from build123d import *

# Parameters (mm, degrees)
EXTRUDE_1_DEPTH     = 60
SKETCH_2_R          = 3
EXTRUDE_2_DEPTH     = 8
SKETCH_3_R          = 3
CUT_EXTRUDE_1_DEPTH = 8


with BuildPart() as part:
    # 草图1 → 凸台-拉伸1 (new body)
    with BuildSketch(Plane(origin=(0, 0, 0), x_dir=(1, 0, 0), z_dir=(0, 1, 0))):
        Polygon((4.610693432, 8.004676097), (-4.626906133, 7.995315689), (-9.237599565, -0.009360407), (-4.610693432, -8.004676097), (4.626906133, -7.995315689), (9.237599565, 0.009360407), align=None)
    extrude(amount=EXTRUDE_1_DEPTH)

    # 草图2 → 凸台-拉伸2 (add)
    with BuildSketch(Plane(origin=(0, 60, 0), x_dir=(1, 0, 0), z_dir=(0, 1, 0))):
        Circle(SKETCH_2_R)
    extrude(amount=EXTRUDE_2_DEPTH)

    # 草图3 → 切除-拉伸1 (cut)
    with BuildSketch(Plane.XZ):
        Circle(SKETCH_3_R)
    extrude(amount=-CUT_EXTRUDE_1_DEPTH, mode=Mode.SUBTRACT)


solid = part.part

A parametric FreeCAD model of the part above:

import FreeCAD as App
import Part
import Sketcher
Q = App.Units.Quantity

doc = App.newDocument("Part")
body = doc.addObject("PartDesign::Body", "Body")

sketch1 = body.newObject("Sketcher::SketchObject", "Sketch")
sketch1.AttachmentSupport = (doc.getObject("XZ_Plane"), [""])
sketch1.MapMode = "FlatFace"
sketch1.addGeometry(Part.LineSegment(App.Vector(4.610693, -8.004676, 0), App.Vector(-4.626906, -7.995316, 0)), False)
sketch1.addGeometry(Part.LineSegment(App.Vector(-4.626906, -7.995316, 0), App.Vector(-9.2376, 0.00936, 0)), False)
sketch1.addGeometry(Part.LineSegment(App.Vector(-9.2376, 0.00936, 0), App.Vector(-4.610693, 8.004676, 0)), False)
sketch1.addGeometry(Part.LineSegment(App.Vector(-4.610693, 8.004676, 0), App.Vector(4.626906, 7.995316, 0)), False)
sketch1.addGeometry(Part.LineSegment(App.Vector(4.626906, 7.995316, 0), App.Vector(9.2376, -0.00936, 0)), False)
sketch1.addGeometry(Part.LineSegment(App.Vector(9.2376, -0.00936, 0), App.Vector(4.610693, -8.004676, 0)), False)
sketch1.addConstraint(Sketcher.Constraint("Coincident", 0, 2, 1, 1))
sketch1.addConstraint(Sketcher.Constraint("Coincident", 1, 2, 2, 1))
sketch1.addConstraint(Sketcher.Constraint("Coincident", 2, 2, 3, 1))
sketch1.addConstraint(Sketcher.Constraint("Coincident", 3, 2, 4, 1))
sketch1.addConstraint(Sketcher.Constraint("Coincident", 4, 2, 5, 1))
sketch1.addConstraint(Sketcher.Constraint("Coincident", 5, 2, 0, 1))
sketch1.addConstraint(Sketcher.Constraint("Symmetric", 0, 2, 3, 2, -1, 1))
sketch1.addConstraint(Sketcher.Constraint("Symmetric", 1, 2, 4, 2, -1, 1))
sketch1.addConstraint(Sketcher.Constraint("Symmetric", 2, 2, 5, 2, -1, 1))
sketch1.addConstraint(Sketcher.Constraint("Equal", 0, 1))
sketch1.addConstraint(Sketcher.Constraint("Equal", 1, 2))
sketch1.addConstraint(Sketcher.Constraint("DistanceX", 1, 2, -1, 1, Q("9.2376 mm")))
sketch1.addConstraint(Sketcher.Constraint("DistanceX", 2, 2, 3, 2, Q("9.2376 mm")))
sketch1.addConstraint(Sketcher.Constraint("DistanceY", -1, 1, 1, 2, Q("0.00936 mm")))
sketch1.addConstraint(Sketcher.Constraint("DistanceY", 3, 2, 2, 2, Q("0.00936 mm")))
pad1 = body.newObject("PartDesign::Pad", "Pad")
pad1.Profile = sketch1
pad1.Length = 60
pad1.Reversed = True

sketch2 = body.newObject("Sketcher::SketchObject", "Sketch001")
sketch2.AttachmentSupport = (doc.getObject("XZ_Plane"), [""])
sketch2.MapMode = "FlatFace"
sketch2.AttachmentOffset = App.Placement(App.Vector(0, 0, -60), App.Rotation())
sketch2.addGeometry(Part.Circle(App.Vector(0, 0, 0), App.Vector(0, 0, 1), 3), False)
sketch2.addConstraint(Sketcher.Constraint("Coincident", 0, 3, -1, 1))
sketch2.addConstraint(Sketcher.Constraint("Diameter", 0, Q("6 mm")))
pad2 = body.newObject("PartDesign::Pad", "Pad001")
pad2.Profile = sketch2
pad2.Length = 8
pad2.Reversed = True

sketch3 = body.newObject("Sketcher::SketchObject", "Sketch002")
sketch3.AttachmentSupport = (doc.getObject("XZ_Plane"), [""])
sketch3.MapMode = "FlatFace"
sketch3.addGeometry(Part.Circle(App.Vector(0, 0, 0), App.Vector(0, 0, 1), 3), False)
sketch3.addConstraint(Sketcher.Constraint("Coincident", 0, 3, -1, 1))
sketch3.addConstraint(Sketcher.Constraint("Diameter", 0, Q("6 mm")))
pocket1 = body.newObject("PartDesign::Pocket", "Pocket")
pocket1.Profile = sketch3
pocket1.Length = 8

doc.recompute()
